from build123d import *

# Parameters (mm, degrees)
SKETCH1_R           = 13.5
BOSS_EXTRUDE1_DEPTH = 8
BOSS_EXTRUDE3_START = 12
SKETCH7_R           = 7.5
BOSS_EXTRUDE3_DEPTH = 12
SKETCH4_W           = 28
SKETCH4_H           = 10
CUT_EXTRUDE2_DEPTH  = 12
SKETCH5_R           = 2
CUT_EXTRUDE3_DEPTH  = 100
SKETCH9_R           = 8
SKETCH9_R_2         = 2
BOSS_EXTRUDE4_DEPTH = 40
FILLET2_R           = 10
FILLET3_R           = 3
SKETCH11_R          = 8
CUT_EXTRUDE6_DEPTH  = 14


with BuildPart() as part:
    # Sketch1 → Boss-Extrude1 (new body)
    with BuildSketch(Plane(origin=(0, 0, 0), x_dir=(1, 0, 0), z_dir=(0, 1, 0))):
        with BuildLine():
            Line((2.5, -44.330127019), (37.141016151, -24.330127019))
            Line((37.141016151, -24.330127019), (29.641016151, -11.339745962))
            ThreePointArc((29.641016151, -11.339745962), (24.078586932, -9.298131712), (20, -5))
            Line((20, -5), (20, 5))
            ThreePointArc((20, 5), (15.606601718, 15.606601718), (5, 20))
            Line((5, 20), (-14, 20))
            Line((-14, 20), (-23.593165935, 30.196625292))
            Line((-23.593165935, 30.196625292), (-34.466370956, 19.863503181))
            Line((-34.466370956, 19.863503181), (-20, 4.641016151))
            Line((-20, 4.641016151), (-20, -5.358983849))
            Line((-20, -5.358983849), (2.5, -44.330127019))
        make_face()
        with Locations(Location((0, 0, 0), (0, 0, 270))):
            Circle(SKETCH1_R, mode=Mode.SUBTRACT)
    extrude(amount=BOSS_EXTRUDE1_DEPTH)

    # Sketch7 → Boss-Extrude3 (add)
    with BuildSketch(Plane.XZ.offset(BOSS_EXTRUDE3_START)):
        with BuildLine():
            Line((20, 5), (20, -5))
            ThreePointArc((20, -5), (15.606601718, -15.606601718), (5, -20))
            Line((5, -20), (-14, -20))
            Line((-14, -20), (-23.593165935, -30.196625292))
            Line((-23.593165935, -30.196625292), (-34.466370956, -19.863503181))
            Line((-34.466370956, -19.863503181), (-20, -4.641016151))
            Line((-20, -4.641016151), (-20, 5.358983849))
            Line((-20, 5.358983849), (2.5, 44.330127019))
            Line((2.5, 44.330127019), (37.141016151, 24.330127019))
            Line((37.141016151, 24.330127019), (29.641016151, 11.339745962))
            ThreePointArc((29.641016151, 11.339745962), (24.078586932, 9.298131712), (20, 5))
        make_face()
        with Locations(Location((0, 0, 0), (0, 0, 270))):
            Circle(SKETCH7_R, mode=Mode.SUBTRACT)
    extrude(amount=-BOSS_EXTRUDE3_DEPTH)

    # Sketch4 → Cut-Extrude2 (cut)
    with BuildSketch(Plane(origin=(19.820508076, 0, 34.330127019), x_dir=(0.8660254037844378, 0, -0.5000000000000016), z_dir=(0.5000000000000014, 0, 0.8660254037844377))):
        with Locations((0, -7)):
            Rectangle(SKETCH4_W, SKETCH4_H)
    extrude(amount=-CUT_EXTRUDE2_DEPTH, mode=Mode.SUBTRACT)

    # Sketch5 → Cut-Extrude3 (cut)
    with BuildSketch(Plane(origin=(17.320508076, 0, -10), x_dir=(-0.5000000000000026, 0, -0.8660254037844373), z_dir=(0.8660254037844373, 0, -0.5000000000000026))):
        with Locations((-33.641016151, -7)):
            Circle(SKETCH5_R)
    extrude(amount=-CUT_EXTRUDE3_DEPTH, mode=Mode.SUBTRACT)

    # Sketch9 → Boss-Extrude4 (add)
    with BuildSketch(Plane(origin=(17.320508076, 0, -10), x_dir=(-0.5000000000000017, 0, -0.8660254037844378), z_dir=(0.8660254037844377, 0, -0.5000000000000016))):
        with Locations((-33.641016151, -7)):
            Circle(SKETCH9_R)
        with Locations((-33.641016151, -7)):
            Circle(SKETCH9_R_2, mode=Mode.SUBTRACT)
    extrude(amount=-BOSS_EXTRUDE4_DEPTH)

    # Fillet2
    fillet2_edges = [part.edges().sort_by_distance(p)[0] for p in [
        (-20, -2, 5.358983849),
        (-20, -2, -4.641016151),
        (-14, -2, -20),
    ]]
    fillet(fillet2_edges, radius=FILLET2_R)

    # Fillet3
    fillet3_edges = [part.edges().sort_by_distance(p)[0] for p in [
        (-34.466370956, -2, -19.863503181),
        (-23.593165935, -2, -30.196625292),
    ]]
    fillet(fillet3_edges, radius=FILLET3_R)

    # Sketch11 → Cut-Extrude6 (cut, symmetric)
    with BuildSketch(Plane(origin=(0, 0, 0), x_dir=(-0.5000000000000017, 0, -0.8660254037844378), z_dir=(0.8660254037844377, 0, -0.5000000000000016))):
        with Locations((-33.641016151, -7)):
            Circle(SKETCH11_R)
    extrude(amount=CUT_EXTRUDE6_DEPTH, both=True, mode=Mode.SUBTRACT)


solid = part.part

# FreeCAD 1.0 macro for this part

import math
import FreeCAD as App
import Part
import Sketcher
from FreeCAD import Vector
Q = App.Units.Quantity


def edges_at(feature, points):
    """Names of the edges that pass closest to the given points."""
    edges = feature.Shape.Edges
    near = lambda p: min(range(len(edges)), key=lambda i: edges[i].distToShape(Part.Vertex(*p))[0])
    return sorted({f"Edge{near(p) + 1}" for p in points})

doc = App.newDocument("Part")
params = doc.addObject("Spreadsheet::Sheet", "Params")
for row, (alias, value) in enumerate([
    ("sketch1_diameter", "27 mm"),
    ("sketch1_radius", "13 mm"),
    ("sketch1_radius2", "15 mm"),
    ("sketch1_width", "19 mm"),
    ("sketch1_height", "10 mm"),
    ("pad1_length", "8 mm"),
    ("sketch2_diameter", "15 mm"),
    ("sketch2_radius", "13 mm"),
    ("sketch2_radius2", "15 mm"),
    ("sketch2_width", "19 mm"),
    ("sketch2_height", "10 mm"),
    ("pad2_length", "12 mm"),
    ("sketch3_width", "28 mm"),
    ("sketch3_height", "10 mm"),
    ("pocket1_length", "12 mm"),
    ("sketch4_diameter", "4 mm"),
    ("pocket2_length", "100 mm"),
    ("sketch5_diameter", "16 mm"),
    ("sketch5_diameter2", "4 mm"),
    ("pad3_length", "40 mm"),
    ("fillet_radius", "10 mm"),
    ("fillet2_radius", "3 mm"),
    ("sketch6_diameter", "16 mm"),
    ("pocket3_length", "28 mm"),
], start=1):
    params.set(f"A{row}", alias)
    params.set(f"B{row}", "=" + value)
    params.setAlias(f"B{row}", alias)

body = doc.addObject("PartDesign::Body", "Body")

sketch1 = doc.addObject("Sketcher::SketchObject", "Sketch")
body.addObject(sketch1)
sketch1.AttachmentSupport = (doc.XZ_Plane, [""])
sketch1.MapMode = "FlatFace"
sketch1.addGeometry([
    Part.LineSegment(Vector(2, 44, 0), Vector(37, 24, 0)),
    Part.LineSegment(Vector(37, 24, 0), Vector(30, 11, 0)),
    Part.ArcOfCircle(Part.Circle(Vector(31, -2, 0), Vector(0, 0, 1), 13), math.radians(97), math.radians(150)),
    Part.LineSegment(Vector(20, 5, 0), Vector(20, -5, 0)),
    Part.ArcOfCircle(Part.Circle(Vector(5, -5, 0), Vector(0, 0, 1), 15), math.radians(-90), math.radians(0)),
    Part.LineSegment(Vector(5, -20, 0), Vector(-14, -20, 0)),
    Part.LineSegment(Vector(-14, -20, 0), Vector(-24, -30, 0)),
    Part.LineSegment(Vector(-24, -30, 0), Vector(-34, -20, 0)),
    Part.LineSegment(Vector(-34, -20, 0), Vector(-20, -5, 0)),
    Part.LineSegment(Vector(-20, -5, 0), Vector(-20, 5, 0)),
    Part.LineSegment(Vector(-20, 5, 0), Vector(2, 44, 0)),
    Part.Circle(Vector(0, 0, 0), Vector(0, 0, 1), 14),
], False)
sketch1.addConstraint([
    Sketcher.Constraint("Coincident", 0, 2, 1, 1),
    Sketcher.Constraint("Coincident", 1, 2, 2, 1),
    Sketcher.Constraint("Coincident", 2, 2, 3, 1),
    Sketcher.Constraint("Tangent", 3, 2, 4, 2),
    Sketcher.Constraint("Tangent", 4, 1, 5, 1),
    Sketcher.Constraint("Coincident", 5, 2, 6, 1),
    Sketcher.Constraint("Coincident", 6, 2, 7, 1),
    Sketcher.Constraint("Coincident", 7, 2, 8, 1),
    Sketcher.Constraint("Coincident", 8, 2, 9, 1),
    Sketcher.Constraint("Coincident", 9, 2, 10, 1),
    Sketcher.Constraint("Coincident", 10, 2, 0, 1),
    Sketcher.Constraint("Vertical", 3),
    Sketcher.Constraint("Horizontal", 5),
    Sketcher.Constraint("Vertical", 9),
    Sketcher.Constraint("Coincident", 11, 3, -1, 1),
    Sketcher.Constraint("Perpendicular", 0, 1),
    Sketcher.Constraint("Perpendicular", 7, 8),
    Sketcher.Constraint("Parallel", 1, 10),
    Sketcher.Constraint("Equal", 3, 9),
    Sketcher.Constraint("Equal", 1, 7),
    Sketcher.Constraint("Diameter", 11, Q("27 mm")),
    Sketcher.Constraint("Radius", 2, Q("13 mm")),
    Sketcher.Constraint("Radius", 4, Q("15 mm")),
    Sketcher.Constraint("DistanceX", 5, 2, 5, 1, Q("19 mm")),
    Sketcher.Constraint("DistanceY", 3, 2, 3, 1, Q("10 mm")),
    Sketcher.Constraint("Angle", 0, Q("-30 deg")),
    Sketcher.Constraint("Distance", 0, Q("40 mm")),
    Sketcher.Constraint("Distance", 1, Q("15 mm")),
    Sketcher.Constraint("Distance", 6, Q("14 mm")),
    Sketcher.Constraint("Distance", 8, Q("21 mm")),
    Sketcher.Constraint("Distance", 10, Q("45 mm")),
    Sketcher.Constraint("DistanceX", -1, 1, 4, 3, Q("5 mm")),
    Sketcher.Constraint("DistanceY", 4, 3, -1, 1, Q("5 mm")),
    Sketcher.Constraint("DistanceX", 8, 2, -1, 1, Q("20 mm")),
    Sketcher.Constraint("DistanceX", -1, 1, 2, 3, Q("31.22122 mm")),
])
sketch1.setExpression("Constraints[20]", "Params.sketch1_diameter")
sketch1.setExpression("Constraints[21]", "Params.sketch1_radius")
sketch1.setExpression("Constraints[22]", "Params.sketch1_radius2")
sketch1.setExpression("Constraints[23]", "Params.sketch1_width")
sketch1.setExpression("Constraints[24]", "Params.sketch1_height")
pad1 = doc.addObject("PartDesign::Pad", "Pad")
body.addObject(pad1)
pad1.Profile = sketch1
pad1.setExpression("Length", "Params.pad1_length")
pad1.Reversed = True

sketch2 = doc.addObject("Sketcher::SketchObject", "Sketch001")
body.addObject(sketch2)
sketch2.AttachmentSupport = (doc.XZ_Plane, [""])
sketch2.MapMode = "FlatFace"
sketch2.AttachmentOffset = App.Placement(Vector(0, 0, 12), App.Rotation())
sketch2.addGeometry([
    Part.LineSegment(Vector(20, -5, 0), Vector(20, 5, 0)),
    Part.ArcOfCircle(Part.Circle(Vector(31, -2, 0), Vector(0, 0, 1), 13), math.radians(97), math.radians(150)),
    Part.LineSegment(Vector(30, 11, 0), Vector(37, 24, 0)),
    Part.LineSegment(Vector(37, 24, 0), Vector(2, 44, 0)),
    Part.LineSegment(Vector(2, 44, 0), Vector(-20, 5, 0)),
    Part.LineSegment(Vector(-20, 5, 0), Vector(-20, -5, 0)),
    Part.LineSegment(Vector(-20, -5, 0), Vector(-34, -20, 0)),
    Part.LineSegment(Vector(-34, -20, 0), Vector(-24, -30, 0)),
    Part.LineSegment(Vector(-24, -30, 0), Vector(-14, -20, 0)),
    Part.LineSegment(Vector(-14, -20, 0), Vector(5, -20, 0)),
    Part.ArcOfCircle(Part.Circle(Vector(5, -5, 0), Vector(0, 0, 1), 15), math.radians(-90), math.radians(0)),
    Part.Circle(Vector(0, 0, 0), Vector(0, 0, 1), 8),
], False)
sketch2.addConstraint([
    Sketcher.Constraint("Coincident", 0, 2, 1, 2),
    Sketcher.Constraint("Coincident", 1, 1, 2, 1),
    Sketcher.Constraint("Coincident", 2, 2, 3, 1),
    Sketcher.Constraint("Coincident", 3, 2, 4, 1),
    Sketcher.Constraint("Coincident", 4, 2, 5, 1),
    Sketcher.Constraint("Coincident", 5, 2, 6, 1),
    Sketcher.Constraint("Coincident", 6, 2, 7, 1),
    Sketcher.Constraint("Coincident", 7, 2, 8, 1),
    Sketcher.Constraint("Coincident", 8, 2, 9, 1),
    Sketcher.Constraint("Tangent", 9, 2, 10, 1),
    Sketcher.Constraint("Tangent", 10, 2, 0, 1),
    Sketcher.Constraint("Vertical", 0),
    Sketcher.Constraint("Vertical", 5),
    Sketcher.Constraint("Horizontal", 9),
    Sketcher.Constraint("Coincident", 11, 3, -1, 1),
    Sketcher.Constraint("Perpendicular", 2, 3),
    Sketcher.Constraint("Perpendicular", 3, 4),
    Sketcher.Constraint("Perpendicular", 6, 7),
    Sketcher.Constraint("Equal", 0, 5),
    Sketcher.Constraint("Equal", 2, 7),
    Sketcher.Constraint("Diameter", 11, Q("15 mm")),
    Sketcher.Constraint("Radius", 1, Q("13 mm")),
    Sketcher.Constraint("Radius", 10, Q("15 mm")),
    Sketcher.Constraint("DistanceX", 9, 1, 9, 2, Q("19 mm")),
    Sketcher.Constraint("DistanceY", 0, 1, 0, 2, Q("10 mm")),
    Sketcher.Constraint("Angle", 2, Q("60 deg")),
    Sketcher.Constraint("Distance", 2, Q("15 mm")),
    Sketcher.Constraint("Distance", 3, Q("40 mm")),
    Sketcher.Constraint("Distance", 4, Q("45 mm")),
    Sketcher.Constraint("Distance", 6, Q("21 mm")),
    Sketcher.Constraint("Distance", 8, Q("14 mm")),
    Sketcher.Constraint("DistanceX", -1, 1, 10, 3, Q("5 mm")),
    Sketcher.Constraint("DistanceY", 10, 3, -1, 1, Q("5 mm")),
    Sketcher.Constraint("DistanceX", 4, 2, -1, 1, Q("20 mm")),
    Sketcher.Constraint("DistanceX", -1, 1, 1, 3, Q("31.22122 mm")),
])
sketch2.setExpression("Constraints[20]", "Params.sketch2_diameter")
sketch2.setExpression("Constraints[21]", "Params.sketch2_radius")
sketch2.setExpression("Constraints[22]", "Params.sketch2_radius2")
sketch2.setExpression("Constraints[23]", "Params.sketch2_width")
sketch2.setExpression("Constraints[24]", "Params.sketch2_height")
pad2 = doc.addObject("PartDesign::Pad", "Pad001")
body.addObject(pad2)
pad2.Profile = sketch2
pad2.setExpression("Length", "Params.pad2_length")
pad2.Reversed = True

sketch3 = doc.addObject("Sketcher::SketchObject", "Sketch002")
body.addObject(sketch3)
sketch3.Placement = App.Placement(Vector(19.820508, 0, 34.330127), App.Rotation(Vector(0.866025404, 0, -0.5), Vector(0, 1, 0), Vector(0.5, 0, 0.866025404), "ZXY"))
sketch3.addGeometry([
    Part.LineSegment(Vector(-14, -2, 0), Vector(-14, -12, 0)),
    Part.LineSegment(Vector(-14, -12, 0), Vector(14, -12, 0)),
    Part.LineSegment(Vector(14, -12, 0), Vector(14, -2, 0)),
    Part.LineSegment(Vector(14, -2, 0), Vector(-14, -2, 0)),
], False)
sketch3.addConstraint([
    Sketcher.Constraint("Coincident", 0, 2, 1, 1),
    Sketcher.Constraint("Coincident", 1, 2, 2, 1),
    Sketcher.Constraint("Coincident", 2, 2, 3, 1),
    Sketcher.Constraint("Coincident", 3, 2, 0, 1),
    Sketcher.Constraint("Vertical", 0),
    Sketcher.Constraint("Horizontal", 1),
    Sketcher.Constraint("Vertical", 2),
    Sketcher.Constraint("Horizontal", 3),
    Sketcher.Constraint("DistanceX", 1, 1, 1, 2, Q("28 mm")),
    Sketcher.Constraint("DistanceY", 0, 2, 0, 1, Q("10 mm")),
    Sketcher.Constraint("DistanceX", 0, 2, -1, 1, Q("14 mm")),
    Sketcher.Constraint("DistanceY", 0, 2, -1, 1, Q("12 mm")),
])
sketch3.setExpression("Constraints[8]", "Params.sketch3_width")
sketch3.setExpression("Constraints[9]", "Params.sketch3_height")
pocket1 = doc.addObject("PartDesign::Pocket", "Pocket")
body.addObject(pocket1)
pocket1.Profile = sketch3
pocket1.setExpression("Length", "Params.pocket1_length")

sketch4 = doc.addObject("Sketcher::SketchObject", "Sketch003")
body.addObject(sketch4)
sketch4.Placement = App.Placement(Vector(17.320508, 0, -10), App.Rotation(Vector(-0.5, 0, -0.866025404), Vector(0, 1, 0), Vector(0.866025404, 0, -0.5), "ZXY"))
sketch4.addGeometry(Part.Circle(Vector(-33.6, -7, 0), Vector(0, 0, 1), 2), False)
sketch4.addConstraint([
    Sketcher.Constraint("Diameter", 0, Q("4 mm")),
    Sketcher.Constraint("DistanceY", 0, 3, -1, 1, Q("7 mm")),
    Sketcher.Constraint("DistanceX", 0, 3, -1, 1, Q("33.641016 mm")),
])
sketch4.setExpression("Constraints[0]", "Params.sketch4_diameter")
pocket2 = doc.addObject("PartDesign::Pocket", "Pocket001")
body.addObject(pocket2)
pocket2.Profile = sketch4
pocket2.setExpression("Length", "Params.pocket2_length")

sketch5 = doc.addObject("Sketcher::SketchObject", "Sketch004")
body.addObject(sketch5)
sketch5.Placement = App.Placement(Vector(17.320508, 0, -10), App.Rotation(Vector(-0.5, 0, -0.866025404), Vector(0, 1, 0), Vector(0.866025404, 0, -0.5), "ZXY"))
sketch5.addGeometry([
    Part.Circle(Vector(-33.6, -7, 0), Vector(0, 0, 1), 8),
    Part.Circle(Vector(-33.6, -7, 0), Vector(0, 0, 1), 2),
], False)
sketch5.addConstraint([
    Sketcher.Constraint("Coincident", 1, 3, 0, 3),
    Sketcher.Constraint("Diameter", 0, Q("16 mm")),
    Sketcher.Constraint("Diameter", 1, Q("4 mm")),
    Sketcher.Constraint("DistanceY", 0, 3, -1, 1, Q("7 mm")),
    Sketcher.Constraint("DistanceX", 0, 3, -1, 1, Q("33.641016 mm")),
])
sketch5.setExpression("Constraints[1]", "Params.sketch5_diameter")
sketch5.setExpression("Constraints[2]", "Params.sketch5_diameter2")
pad3 = doc.addObject("PartDesign::Pad", "Pad002")
body.addObject(pad3)
pad3.Profile = sketch5
pad3.setExpression("Length", "Params.pad3_length")
pad3.Reversed = True
doc.recompute()

fillet = doc.addObject("PartDesign::Fillet", "Fillet")
body.addObject(fillet)
fillet.Base = (pad3, edges_at(pad3, [(-20, -2, 5.359), (-20, -2, -4.641), (-14, -2, -20)]))
fillet.setExpression("Radius", "Params.fillet_radius")
doc.recompute()

fillet2 = doc.addObject("PartDesign::Fillet", "Fillet001")
body.addObject(fillet2)
fillet2.Base = (fillet, edges_at(fillet, [(-34.466, -2, -19.864), (-23.593, -2, -30.197)]))
fillet2.setExpression("Radius", "Params.fillet2_radius")

sketch6 = doc.addObject("Sketcher::SketchObject", "Sketch005")
body.addObject(sketch6)
sketch6.Placement = App.Placement(Vector(0, 0, 0), App.Rotation(Vector(-0.5, 0, -0.866025404), Vector(0, 1, 0), Vector(0.866025404, 0, -0.5), "ZXY"))
sketch6.addGeometry(Part.Circle(Vector(-34, -7, 0), Vector(0, 0, 1), 8), False)
sketch6.addConstraint([
    Sketcher.Constraint("Diameter", 0, Q("16 mm")),
    Sketcher.Constraint("DistanceY", 0, 3, -1, 1, Q("7 mm")),
    Sketcher.Constraint("DistanceX", 0, 3, -1, 1, Q("33.641016 mm")),
])
sketch6.setExpression("Constraints[0]", "Params.sketch6_diameter")
pocket3 = doc.addObject("PartDesign::Pocket", "Pocket002")
body.addObject(pocket3)
pocket3.Profile = sketch6
pocket3.setExpression("Length", "Params.pocket3_length")
pocket3.Midplane = True

doc.recompute()
